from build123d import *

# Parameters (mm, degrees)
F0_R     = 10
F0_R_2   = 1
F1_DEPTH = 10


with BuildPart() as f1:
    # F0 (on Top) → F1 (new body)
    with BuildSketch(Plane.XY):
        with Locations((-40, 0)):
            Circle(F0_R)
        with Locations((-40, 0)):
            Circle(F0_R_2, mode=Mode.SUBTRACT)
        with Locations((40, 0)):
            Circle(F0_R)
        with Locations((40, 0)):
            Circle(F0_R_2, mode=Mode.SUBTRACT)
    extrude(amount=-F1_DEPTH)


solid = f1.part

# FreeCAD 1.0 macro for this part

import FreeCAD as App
import Part
import Sketcher

V = App.Vector

doc = App.newDocument("Part")
params = doc.addObject("Spreadsheet::Sheet", "Params")
for row, (alias, value) in enumerate([
    ("sketch1_diameter", "20 mm"),
    ("sketch1_diameter2", "2 mm"),
    ("pad1_length", "10 mm"),
], start=1):
    params.set(f"A{row}", alias)
    params.set(f"B{row}", "=" + value)
    params.setAlias(f"B{row}", alias)

body = doc.addObject("PartDesign::Body", "Body")
body.AllowCompound = True

sketch1 = body.newObject("Sketcher::SketchObject", "Sketch")
sketch1.AttachmentSupport = (doc.getObject("XY_Plane"), [""])
sketch1.MapMode = "FlatFace"
sketch1.addGeometry(Part.Circle(V(-40, 0, 0), V(0, 0, 1), 10), False)
sketch1.addGeometry(Part.Circle(V(-40, 0, 0), V(0, 0, 1), 1), False)
sketch1.addGeometry(Part.Circle(V(40, 0, 0), V(0, 0, 1), 10), False)
sketch1.addGeometry(Part.Circle(V(40, 0, 0), V(0, 0, 1), 1), False)
sketch1.addConstraint(Sketcher.Constraint("Coincident", 1, 3, 0, 3))
sketch1.addConstraint(Sketcher.Constraint("Coincident", 3, 3, 2, 3))
sketch1.addConstraint(Sketcher.Constraint("Equal", 0, 2))
sketch1.addConstraint(Sketcher.Constraint("Equal", 1, 3))
sketch1.addConstraint(Sketcher.Constraint("Symmetric", 0, 3, 2, 3, -1, 1))
sketch1.addConstraint(Sketcher.Constraint("PointOnObject", 0, 3, -1))
sketch1.addConstraint(Sketcher.Constraint("Diameter", 0, 20.0))
sketch1.addConstraint(Sketcher.Constraint("Diameter", 1, 2.0))
sketch1.addConstraint(Sketcher.Constraint("DistanceX", 0, 3, -1, 1, 40.0))
sketch1.setExpression("Constraints[6]", "Params.sketch1_diameter")
sketch1.setExpression("Constraints[7]", "Params.sketch1_diameter2")
pad1 = body.newObject("PartDesign::Pad", "Pad")
pad1.Profile = sketch1
pad1.setExpression("Length", "Params.pad1_length")
pad1.Reversed = True

doc.recompute()
